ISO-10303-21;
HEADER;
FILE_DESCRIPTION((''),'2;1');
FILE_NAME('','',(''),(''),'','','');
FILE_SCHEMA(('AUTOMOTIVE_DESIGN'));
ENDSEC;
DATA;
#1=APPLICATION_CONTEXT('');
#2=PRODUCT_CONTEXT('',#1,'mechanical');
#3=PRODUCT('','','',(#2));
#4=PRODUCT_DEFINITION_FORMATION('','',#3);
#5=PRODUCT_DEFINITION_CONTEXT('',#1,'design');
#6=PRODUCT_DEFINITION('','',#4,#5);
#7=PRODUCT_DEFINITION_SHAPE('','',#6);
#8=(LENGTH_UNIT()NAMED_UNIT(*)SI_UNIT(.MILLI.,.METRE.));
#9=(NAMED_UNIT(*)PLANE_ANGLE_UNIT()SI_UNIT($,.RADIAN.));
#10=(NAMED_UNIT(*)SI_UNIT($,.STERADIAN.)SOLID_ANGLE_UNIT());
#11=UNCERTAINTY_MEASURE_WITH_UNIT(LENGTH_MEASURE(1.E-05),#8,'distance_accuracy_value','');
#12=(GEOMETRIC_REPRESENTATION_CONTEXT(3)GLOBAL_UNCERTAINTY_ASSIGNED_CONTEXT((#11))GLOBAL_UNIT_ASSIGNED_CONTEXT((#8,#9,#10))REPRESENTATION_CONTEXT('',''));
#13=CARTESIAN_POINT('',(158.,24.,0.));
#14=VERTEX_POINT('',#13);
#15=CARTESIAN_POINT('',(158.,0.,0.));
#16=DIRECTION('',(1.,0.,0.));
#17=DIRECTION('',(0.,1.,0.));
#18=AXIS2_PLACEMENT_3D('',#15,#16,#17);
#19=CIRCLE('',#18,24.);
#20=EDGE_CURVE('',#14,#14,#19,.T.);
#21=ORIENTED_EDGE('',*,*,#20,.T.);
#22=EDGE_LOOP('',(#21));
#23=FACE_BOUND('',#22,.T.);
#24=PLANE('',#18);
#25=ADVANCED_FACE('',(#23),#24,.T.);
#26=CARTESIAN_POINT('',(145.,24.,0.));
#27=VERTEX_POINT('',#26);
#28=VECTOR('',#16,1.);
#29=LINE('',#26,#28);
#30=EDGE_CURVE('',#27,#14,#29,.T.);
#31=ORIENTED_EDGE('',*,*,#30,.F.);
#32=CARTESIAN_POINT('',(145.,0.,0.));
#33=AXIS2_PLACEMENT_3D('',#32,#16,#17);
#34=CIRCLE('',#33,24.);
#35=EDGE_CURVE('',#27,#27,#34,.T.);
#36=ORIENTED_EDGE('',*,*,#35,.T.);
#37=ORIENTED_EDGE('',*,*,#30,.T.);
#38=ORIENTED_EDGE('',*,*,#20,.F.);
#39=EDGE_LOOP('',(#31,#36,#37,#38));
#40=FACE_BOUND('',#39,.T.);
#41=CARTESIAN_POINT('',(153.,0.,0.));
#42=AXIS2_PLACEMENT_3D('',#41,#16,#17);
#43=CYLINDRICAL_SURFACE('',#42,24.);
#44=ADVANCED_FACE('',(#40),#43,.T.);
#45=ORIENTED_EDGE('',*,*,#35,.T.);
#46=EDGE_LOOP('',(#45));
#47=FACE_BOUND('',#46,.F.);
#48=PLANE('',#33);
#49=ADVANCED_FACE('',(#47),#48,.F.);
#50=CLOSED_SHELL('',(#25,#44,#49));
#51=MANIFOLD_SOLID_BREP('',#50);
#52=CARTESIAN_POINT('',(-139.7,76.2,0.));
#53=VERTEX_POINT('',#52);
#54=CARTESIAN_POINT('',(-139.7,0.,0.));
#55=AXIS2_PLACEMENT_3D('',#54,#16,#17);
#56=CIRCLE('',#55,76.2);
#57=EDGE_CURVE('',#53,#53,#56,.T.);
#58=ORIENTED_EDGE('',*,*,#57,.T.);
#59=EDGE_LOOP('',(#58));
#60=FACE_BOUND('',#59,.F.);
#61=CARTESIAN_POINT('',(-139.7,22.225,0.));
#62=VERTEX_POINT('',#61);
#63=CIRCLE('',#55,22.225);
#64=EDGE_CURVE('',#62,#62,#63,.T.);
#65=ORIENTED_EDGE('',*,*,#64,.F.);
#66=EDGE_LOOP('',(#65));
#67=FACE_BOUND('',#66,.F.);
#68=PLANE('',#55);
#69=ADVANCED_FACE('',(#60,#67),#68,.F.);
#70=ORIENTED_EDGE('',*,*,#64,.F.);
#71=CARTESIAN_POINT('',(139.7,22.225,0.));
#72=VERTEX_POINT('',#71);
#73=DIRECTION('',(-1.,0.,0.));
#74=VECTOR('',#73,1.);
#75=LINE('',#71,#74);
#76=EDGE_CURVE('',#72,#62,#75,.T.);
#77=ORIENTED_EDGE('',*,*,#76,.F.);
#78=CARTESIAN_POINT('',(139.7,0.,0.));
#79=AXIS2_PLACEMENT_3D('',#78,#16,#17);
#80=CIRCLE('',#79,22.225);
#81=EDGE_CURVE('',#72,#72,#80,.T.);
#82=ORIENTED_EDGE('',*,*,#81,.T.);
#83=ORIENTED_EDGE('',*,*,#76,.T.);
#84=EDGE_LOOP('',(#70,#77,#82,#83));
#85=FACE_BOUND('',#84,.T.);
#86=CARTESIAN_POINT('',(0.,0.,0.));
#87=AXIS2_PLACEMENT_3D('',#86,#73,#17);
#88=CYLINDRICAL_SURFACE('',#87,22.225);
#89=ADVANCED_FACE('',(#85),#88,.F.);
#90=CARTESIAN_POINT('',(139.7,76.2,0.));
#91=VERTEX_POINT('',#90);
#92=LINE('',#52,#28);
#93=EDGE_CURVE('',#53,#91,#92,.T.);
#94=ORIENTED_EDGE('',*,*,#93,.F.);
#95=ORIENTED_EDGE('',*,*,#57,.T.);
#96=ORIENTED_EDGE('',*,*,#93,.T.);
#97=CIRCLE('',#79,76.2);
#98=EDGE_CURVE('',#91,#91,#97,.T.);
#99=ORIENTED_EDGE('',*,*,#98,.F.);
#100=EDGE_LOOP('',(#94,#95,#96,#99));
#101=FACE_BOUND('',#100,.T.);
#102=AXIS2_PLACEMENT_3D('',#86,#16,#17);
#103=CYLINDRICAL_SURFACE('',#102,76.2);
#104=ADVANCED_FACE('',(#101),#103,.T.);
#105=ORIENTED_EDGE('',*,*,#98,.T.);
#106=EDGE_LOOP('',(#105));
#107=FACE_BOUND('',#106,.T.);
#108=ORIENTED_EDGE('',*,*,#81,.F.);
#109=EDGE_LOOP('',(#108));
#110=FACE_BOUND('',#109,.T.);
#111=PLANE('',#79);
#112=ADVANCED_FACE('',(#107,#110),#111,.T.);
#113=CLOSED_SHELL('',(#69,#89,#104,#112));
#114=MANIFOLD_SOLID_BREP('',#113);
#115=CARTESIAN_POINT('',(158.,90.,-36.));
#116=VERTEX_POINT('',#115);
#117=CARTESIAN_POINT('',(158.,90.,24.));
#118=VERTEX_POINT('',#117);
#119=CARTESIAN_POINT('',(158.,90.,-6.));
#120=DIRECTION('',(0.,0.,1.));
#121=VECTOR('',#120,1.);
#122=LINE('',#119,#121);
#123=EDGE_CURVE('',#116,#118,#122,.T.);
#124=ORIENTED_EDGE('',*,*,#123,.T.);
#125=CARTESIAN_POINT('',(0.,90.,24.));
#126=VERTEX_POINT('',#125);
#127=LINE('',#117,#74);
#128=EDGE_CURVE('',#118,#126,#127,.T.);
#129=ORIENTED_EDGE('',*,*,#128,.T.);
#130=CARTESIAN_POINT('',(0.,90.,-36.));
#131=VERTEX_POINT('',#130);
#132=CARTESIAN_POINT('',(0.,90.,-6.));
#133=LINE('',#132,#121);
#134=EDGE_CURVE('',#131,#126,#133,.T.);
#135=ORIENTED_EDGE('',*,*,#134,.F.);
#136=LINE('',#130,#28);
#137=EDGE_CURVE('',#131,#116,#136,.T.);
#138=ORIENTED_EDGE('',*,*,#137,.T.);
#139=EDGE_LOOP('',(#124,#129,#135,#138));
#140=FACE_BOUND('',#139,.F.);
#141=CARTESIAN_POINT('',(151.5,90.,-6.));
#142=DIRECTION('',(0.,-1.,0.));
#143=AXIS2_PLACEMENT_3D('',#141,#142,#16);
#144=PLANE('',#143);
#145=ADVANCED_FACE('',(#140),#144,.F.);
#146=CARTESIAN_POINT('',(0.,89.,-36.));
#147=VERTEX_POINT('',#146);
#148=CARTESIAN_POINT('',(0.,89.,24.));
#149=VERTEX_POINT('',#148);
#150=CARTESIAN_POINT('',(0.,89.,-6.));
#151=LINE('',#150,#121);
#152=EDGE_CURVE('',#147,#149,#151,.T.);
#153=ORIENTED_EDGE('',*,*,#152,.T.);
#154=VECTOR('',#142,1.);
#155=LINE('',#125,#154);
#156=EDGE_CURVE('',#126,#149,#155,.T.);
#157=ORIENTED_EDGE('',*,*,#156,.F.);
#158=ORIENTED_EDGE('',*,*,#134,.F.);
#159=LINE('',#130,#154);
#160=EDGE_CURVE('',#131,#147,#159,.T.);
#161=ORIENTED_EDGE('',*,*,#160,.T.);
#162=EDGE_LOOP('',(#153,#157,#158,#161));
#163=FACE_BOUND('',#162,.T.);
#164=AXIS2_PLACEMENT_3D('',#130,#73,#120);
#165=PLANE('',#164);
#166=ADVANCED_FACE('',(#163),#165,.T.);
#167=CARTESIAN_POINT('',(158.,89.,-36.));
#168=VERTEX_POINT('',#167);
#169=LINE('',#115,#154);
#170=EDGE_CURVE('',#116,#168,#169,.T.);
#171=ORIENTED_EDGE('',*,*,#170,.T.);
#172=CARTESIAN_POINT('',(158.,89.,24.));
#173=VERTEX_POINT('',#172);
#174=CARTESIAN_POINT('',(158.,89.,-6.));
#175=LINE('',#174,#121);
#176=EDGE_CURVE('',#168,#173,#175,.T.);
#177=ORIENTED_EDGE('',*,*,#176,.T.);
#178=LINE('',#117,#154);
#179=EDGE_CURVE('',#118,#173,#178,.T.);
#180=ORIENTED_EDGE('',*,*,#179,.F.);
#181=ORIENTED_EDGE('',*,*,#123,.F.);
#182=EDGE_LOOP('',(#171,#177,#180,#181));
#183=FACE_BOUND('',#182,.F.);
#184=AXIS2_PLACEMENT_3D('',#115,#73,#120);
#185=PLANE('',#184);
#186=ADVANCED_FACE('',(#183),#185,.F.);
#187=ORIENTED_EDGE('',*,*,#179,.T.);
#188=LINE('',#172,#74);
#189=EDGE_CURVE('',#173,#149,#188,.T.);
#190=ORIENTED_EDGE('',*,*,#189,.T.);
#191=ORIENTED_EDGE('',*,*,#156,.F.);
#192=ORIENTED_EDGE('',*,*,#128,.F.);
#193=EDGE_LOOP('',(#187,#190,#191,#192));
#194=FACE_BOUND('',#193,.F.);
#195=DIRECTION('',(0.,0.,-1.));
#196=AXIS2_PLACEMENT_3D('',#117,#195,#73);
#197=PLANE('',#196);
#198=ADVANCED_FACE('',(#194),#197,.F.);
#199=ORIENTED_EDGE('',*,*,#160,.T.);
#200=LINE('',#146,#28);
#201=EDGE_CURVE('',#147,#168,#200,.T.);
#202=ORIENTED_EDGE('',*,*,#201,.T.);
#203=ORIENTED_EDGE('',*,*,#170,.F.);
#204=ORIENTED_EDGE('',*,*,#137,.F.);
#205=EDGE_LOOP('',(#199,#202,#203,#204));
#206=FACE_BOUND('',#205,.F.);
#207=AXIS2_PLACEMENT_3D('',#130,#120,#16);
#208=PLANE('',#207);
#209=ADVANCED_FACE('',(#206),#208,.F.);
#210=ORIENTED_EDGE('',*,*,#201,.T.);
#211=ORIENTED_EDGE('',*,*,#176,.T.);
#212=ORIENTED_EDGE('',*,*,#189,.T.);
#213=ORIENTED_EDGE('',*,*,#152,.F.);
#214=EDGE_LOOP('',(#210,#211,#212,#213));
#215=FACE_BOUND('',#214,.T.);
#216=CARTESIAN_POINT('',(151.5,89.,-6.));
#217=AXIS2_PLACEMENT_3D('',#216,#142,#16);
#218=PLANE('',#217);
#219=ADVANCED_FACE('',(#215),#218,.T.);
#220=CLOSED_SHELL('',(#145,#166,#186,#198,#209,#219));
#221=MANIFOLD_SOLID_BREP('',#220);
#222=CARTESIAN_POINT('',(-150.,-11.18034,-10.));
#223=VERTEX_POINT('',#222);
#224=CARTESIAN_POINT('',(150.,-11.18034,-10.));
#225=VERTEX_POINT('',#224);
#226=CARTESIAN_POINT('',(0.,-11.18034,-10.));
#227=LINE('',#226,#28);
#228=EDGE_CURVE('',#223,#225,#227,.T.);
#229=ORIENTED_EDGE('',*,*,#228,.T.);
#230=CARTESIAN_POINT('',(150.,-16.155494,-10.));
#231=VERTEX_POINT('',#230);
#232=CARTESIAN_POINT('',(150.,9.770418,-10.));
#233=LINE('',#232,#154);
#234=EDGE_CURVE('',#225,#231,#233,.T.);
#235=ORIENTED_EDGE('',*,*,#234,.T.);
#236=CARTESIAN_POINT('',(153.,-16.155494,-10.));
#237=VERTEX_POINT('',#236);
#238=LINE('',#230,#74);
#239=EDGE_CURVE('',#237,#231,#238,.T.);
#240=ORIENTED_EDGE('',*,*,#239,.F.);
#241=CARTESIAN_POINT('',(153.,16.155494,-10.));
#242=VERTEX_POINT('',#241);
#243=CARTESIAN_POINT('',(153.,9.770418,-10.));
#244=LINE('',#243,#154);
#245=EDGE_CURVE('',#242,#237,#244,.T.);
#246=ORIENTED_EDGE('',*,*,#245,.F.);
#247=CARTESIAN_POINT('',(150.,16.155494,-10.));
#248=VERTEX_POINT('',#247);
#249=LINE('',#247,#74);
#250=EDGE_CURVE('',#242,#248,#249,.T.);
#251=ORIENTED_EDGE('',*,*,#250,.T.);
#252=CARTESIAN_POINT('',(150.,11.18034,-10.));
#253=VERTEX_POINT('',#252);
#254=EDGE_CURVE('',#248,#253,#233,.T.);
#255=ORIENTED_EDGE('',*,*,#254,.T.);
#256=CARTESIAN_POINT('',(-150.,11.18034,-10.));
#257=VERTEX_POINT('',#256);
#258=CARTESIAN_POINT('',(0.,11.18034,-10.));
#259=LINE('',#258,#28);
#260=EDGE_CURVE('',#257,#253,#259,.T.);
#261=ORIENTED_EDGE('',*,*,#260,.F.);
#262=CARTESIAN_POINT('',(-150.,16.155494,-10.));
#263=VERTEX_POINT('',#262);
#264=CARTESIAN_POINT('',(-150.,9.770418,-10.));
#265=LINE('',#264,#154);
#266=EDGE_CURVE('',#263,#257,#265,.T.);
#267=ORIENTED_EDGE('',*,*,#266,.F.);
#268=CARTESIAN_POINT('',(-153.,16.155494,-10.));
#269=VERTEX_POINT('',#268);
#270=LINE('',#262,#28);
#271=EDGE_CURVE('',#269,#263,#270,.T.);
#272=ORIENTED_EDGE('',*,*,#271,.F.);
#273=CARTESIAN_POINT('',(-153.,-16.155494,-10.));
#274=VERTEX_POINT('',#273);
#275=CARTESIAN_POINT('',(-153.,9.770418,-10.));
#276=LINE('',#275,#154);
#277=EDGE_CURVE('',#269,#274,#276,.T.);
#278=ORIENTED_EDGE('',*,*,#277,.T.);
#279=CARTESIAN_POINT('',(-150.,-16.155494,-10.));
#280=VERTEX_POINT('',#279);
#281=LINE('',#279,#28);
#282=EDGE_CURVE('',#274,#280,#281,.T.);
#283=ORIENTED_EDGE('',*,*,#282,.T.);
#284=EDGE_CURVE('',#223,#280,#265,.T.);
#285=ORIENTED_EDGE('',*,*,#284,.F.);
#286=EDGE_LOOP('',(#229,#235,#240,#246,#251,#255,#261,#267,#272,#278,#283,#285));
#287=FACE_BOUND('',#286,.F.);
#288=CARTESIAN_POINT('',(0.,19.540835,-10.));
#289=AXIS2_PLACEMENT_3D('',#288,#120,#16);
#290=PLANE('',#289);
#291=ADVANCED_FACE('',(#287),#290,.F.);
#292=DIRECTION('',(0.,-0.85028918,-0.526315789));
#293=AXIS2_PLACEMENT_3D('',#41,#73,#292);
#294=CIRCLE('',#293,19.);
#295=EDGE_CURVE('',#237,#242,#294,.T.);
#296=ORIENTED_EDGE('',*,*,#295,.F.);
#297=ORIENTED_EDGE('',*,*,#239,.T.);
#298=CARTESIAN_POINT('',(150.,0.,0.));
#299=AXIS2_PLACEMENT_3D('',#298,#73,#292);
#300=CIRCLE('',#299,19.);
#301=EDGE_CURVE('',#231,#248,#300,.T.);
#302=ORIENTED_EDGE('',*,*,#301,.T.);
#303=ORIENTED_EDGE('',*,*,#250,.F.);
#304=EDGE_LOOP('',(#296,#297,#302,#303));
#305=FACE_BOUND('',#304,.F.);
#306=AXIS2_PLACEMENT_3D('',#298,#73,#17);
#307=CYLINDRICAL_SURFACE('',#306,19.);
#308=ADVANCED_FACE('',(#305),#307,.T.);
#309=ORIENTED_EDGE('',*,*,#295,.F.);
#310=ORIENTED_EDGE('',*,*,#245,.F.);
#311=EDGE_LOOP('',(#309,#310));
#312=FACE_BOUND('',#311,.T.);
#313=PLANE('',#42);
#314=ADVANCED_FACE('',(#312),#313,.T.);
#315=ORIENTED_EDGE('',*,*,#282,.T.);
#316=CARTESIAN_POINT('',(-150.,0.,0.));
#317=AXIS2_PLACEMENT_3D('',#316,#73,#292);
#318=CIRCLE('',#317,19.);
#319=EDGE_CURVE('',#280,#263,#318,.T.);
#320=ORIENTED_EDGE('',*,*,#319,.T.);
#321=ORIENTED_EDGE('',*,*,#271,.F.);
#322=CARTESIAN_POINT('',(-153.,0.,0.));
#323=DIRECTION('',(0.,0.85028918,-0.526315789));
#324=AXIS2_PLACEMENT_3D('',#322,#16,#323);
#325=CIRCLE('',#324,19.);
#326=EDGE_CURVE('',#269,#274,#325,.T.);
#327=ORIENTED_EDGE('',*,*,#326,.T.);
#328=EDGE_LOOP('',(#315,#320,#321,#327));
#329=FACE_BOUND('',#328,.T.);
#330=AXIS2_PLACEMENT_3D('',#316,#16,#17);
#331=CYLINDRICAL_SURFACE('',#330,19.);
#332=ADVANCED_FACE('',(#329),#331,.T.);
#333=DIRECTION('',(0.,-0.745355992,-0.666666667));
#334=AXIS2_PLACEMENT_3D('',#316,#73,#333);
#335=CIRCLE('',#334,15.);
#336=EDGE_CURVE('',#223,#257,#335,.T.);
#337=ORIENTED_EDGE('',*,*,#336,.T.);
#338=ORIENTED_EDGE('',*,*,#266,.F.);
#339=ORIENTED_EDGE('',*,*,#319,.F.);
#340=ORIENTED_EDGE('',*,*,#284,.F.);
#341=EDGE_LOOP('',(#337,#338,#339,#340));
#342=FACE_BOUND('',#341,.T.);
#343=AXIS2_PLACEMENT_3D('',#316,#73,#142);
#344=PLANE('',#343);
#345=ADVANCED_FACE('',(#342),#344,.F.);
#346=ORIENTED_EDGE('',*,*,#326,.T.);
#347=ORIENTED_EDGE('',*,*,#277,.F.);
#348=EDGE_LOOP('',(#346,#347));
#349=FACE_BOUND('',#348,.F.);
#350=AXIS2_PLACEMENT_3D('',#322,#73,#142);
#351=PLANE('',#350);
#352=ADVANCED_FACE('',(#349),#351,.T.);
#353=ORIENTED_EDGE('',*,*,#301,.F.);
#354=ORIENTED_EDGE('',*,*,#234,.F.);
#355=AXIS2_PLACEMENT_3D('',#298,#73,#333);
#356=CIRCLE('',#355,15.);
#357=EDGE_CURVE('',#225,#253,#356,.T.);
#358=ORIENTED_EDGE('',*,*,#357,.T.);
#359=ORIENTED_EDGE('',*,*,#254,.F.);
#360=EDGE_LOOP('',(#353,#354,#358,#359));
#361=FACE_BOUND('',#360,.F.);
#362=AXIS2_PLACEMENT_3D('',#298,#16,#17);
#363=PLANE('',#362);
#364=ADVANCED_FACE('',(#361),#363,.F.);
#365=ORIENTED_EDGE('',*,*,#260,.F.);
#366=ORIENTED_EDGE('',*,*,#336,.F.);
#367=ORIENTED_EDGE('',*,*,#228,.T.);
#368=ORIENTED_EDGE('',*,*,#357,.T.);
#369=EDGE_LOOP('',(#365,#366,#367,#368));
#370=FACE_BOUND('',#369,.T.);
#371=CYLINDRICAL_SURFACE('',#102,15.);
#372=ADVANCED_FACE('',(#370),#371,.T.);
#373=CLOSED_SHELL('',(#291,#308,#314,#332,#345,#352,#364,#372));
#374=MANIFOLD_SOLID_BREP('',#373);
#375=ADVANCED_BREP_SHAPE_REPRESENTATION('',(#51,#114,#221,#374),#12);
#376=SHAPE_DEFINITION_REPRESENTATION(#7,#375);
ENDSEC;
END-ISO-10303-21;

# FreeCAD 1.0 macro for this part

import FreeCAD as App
import Part
import Sketcher

V = App.Vector


def add_polygon(sketch, points):
    """Adds a closed chain of lines whose ends are joined by coincident constraints."""
    first, n = sketch.GeometryCount, len(points)
    for a, b in zip(points, points[1:] + points[:1]):
        sketch.addGeometry(Part.LineSegment(App.Vector(*a, 0), App.Vector(*b, 0)), False)
    for i in range(n):
        sketch.addConstraint(Sketcher.Constraint("Coincident", first + i, 2, first + (i + 1) % n, 1))

doc = App.newDocument("Part")
params = doc.addObject("Spreadsheet::Sheet", "Params")
for row, (alias, value) in enumerate([
    ("sketch1_diameter", "152.4 mm"),
    ("sketch1_diameter2", "44.45 mm"),
    ("pad1_length", "279.4 mm"),
    ("sketch2_diameter", "30 mm"),
    ("pad2_length", "150 mm"),
    ("sketch3_diameter", "38 mm"),
    ("pad3_length", "3 mm"),
    ("pocket1_length", "25 mm"),
    ("sketch5_width", "158 mm"),
    ("sketch5_height", "60 mm"),
    ("pad4_length", "1 mm"),
    ("sketch6_diameter", "48 mm"),
    ("pad5_length", "5 mm"),
    ("pad5_length2", "8 mm"),
], start=1):
    params.set(f"A{row}", alias)
    params.set(f"B{row}", "=" + value)
    params.setAlias(f"B{row}", alias)

body = doc.addObject("PartDesign::Body", "Body")

# Sketch on YZ plane
sketch1 = body.newObject("Sketcher::SketchObject", "Sketch")
sketch1.AttachmentSupport = (doc.getObject("YZ_Plane"), [""])
sketch1.MapMode = "FlatFace"
sketch1.addGeometry([
    Part.Circle(V(0, 0, 0), V(0, 0, 1), 76),
    Part.Circle(V(0, 0, 0), V(0, 0, 1), 22),
], False)
sketch1.addConstraint([
    Sketcher.Constraint("Coincident", 0, 3, -1, 1),
    Sketcher.Constraint("Coincident", 1, 3, -1, 1),
    Sketcher.Constraint("Diameter", 0, 152.4),
    Sketcher.Constraint("Diameter", 1, 44.45),
])
sketch1.setExpression("Constraints[2]", "Params.sketch1_diameter")
sketch1.setExpression("Constraints[3]", "Params.sketch1_diameter2")
pad1 = body.newObject("PartDesign::Pad", "Pad")
pad1.Profile = sketch1
pad1.setExpression("Length", "Params.pad1_length")
pad1.Midplane = True
body2 = doc.addObject("PartDesign::Body", "Body001")

# Sketch on YZ plane
sketch2 = body2.newObject("Sketcher::SketchObject", "Sketch001")
sketch2.AttachmentSupport = (doc.getObject("YZ_Plane001"), [""])
sketch2.MapMode = "FlatFace"
sketch2.addGeometry(Part.Circle(V(0, 0, 0), V(0, 0, 1), 15), False)
sketch2.addConstraint([
    Sketcher.Constraint("Coincident", 0, 3, -1, 1),
    Sketcher.Constraint("Diameter", 0, 30.0),
])
sketch2.setExpression("Constraints[1]", "Params.sketch2_diameter")
pad2 = body2.newObject("PartDesign::Pad", "Pad001")
pad2.Profile = sketch2
pad2.setExpression("Length", "Params.pad2_length")

# Sketch on YZ plane
sketch3 = body2.newObject("Sketcher::SketchObject", "Sketch002")
sketch3.AttachmentSupport = (doc.getObject("YZ_Plane001"), [""])
sketch3.MapMode = "FlatFace"
sketch3.AttachmentOffset = App.Placement(V(0, 0, 150), App.Rotation())
sketch3.addGeometry(Part.Circle(V(0, 0, 0), V(0, 0, 1), 19), False)
sketch3.addConstraint([
    Sketcher.Constraint("Coincident", 0, 3, -1, 1),
    Sketcher.Constraint("Diameter", 0, 38.0),
])
sketch3.setExpression("Constraints[1]", "Params.sketch3_diameter")
pad3 = body2.newObject("PartDesign::Pad", "Pad002")
pad3.Profile = sketch3
pad3.setExpression("Length", "Params.pad3_length")
body3 = doc.addObject("PartDesign::Body", "Body002")
doc.recompute()

body3.BaseFeature = body2
doc.recompute()

mirroring = doc.addObject("Part::Mirroring", "Mirroring")
mirroring.Source = body2
mirroring.Base = V(0, 0, 0)
mirroring.Normal = V(1, 0, 0)
body4 = doc.addObject("PartDesign::Body", "Body003")
body4.BaseFeature = mirroring
boolean = body3.newObject("PartDesign::Boolean", "Boolean")
boolean.Type = "Fuse"
boolean.addObjects([body4])
doc.recompute()

# Sketch on XY plane
sketch4 = body3.newObject("Sketcher::SketchObject", "Sketch003")
sketch4.AttachmentSupport = (doc.getObject("XY_Plane002"), [""])
sketch4.MapMode = "FlatFace"
sketch4.AttachmentOffset = App.Placement(V(0, 0, -10), App.Rotation())
add_polygon(sketch4, [(-216, 160), (-216, -121), (216, -121), (216, 160)])  # lines 0-3
sketch4.addConstraint([
    Sketcher.Constraint("Vertical", 0),
    Sketcher.Constraint("Horizontal", 1),
    Sketcher.Constraint("Vertical", 2),
    Sketcher.Constraint("Horizontal", 3),
    Sketcher.Constraint("DistanceX", 1, 1, 1, 2, 431.770742),
    Sketcher.Constraint("DistanceY", 0, 2, 0, 1, 281.149559),
    Sketcher.Constraint("DistanceX", 0, 2, -1, 1, 215.885371),
    Sketcher.Constraint("DistanceY", 0, 2, -1, 1, 121.033944),
])
pocket1 = body3.newObject("PartDesign::Pocket", "Pocket")
pocket1.Profile = sketch4
pocket1.setExpression("Length", "Params.pocket1_length")
body5 = doc.addObject("PartDesign::Body", "Body004")

# Sketch on XZ plane
sketch5 = body5.newObject("Sketcher::SketchObject", "Sketch004")
sketch5.AttachmentSupport = (doc.getObject("XZ_Plane004"), [""])
sketch5.MapMode = "FlatFace"
sketch5.AttachmentOffset = App.Placement(V(0, 0, -90), App.Rotation())
add_polygon(sketch5, [(158, -36), (158, 24), (0, 24), (0, -36)])  # lines 0-3
sketch5.addConstraint([
    Sketcher.Constraint("Vertical", 0),
    Sketcher.Constraint("Horizontal", 1),
    Sketcher.Constraint("Vertical", 2),
    Sketcher.Constraint("Horizontal", 3),
    Sketcher.Constraint("PointOnObject", 1, 2, -2),
    Sketcher.Constraint("DistanceX", 1, 2, 1, 1, 158.0),
    Sketcher.Constraint("DistanceY", 0, 1, 0, 2, 60.0),
    Sketcher.Constraint("DistanceY", -1, 1, 0, 2, 24.0),
])
sketch5.setExpression("Constraints[9]", "Params.sketch5_width")
sketch5.setExpression("Constraints[10]", "Params.sketch5_height")
pad4 = body5.newObject("PartDesign::Pad", "Pad003")
pad4.Profile = sketch5
pad4.setExpression("Length", "Params.pad4_length")
body6 = doc.addObject("PartDesign::Body", "Body005")

# Sketch on YZ plane
sketch6 = body6.newObject("Sketcher::SketchObject", "Sketch005")
sketch6.AttachmentSupport = (doc.getObject("YZ_Plane005"), [""])
sketch6.MapMode = "FlatFace"
sketch6.AttachmentOffset = App.Placement(V(0, 0, 153), App.Rotation())
sketch6.addGeometry(Part.Circle(V(0, 0, 0), V(0, 0, 1), 24), False)
sketch6.addConstraint([
    Sketcher.Constraint("Coincident", 0, 3, -1, 1),
    Sketcher.Constraint("Diameter", 0, 48.0),
])
sketch6.setExpression("Constraints[1]", "Params.sketch6_diameter")
pad5 = body6.newObject("PartDesign::Pad", "Pad004")
pad5.Profile = sketch6
pad5.Type = "TwoLengths"
pad5.setExpression("Length", "Params.pad5_length")
pad5.setExpression("Length2", "Params.pad5_length2")
mirroring.Visibility = False

doc.recompute()
